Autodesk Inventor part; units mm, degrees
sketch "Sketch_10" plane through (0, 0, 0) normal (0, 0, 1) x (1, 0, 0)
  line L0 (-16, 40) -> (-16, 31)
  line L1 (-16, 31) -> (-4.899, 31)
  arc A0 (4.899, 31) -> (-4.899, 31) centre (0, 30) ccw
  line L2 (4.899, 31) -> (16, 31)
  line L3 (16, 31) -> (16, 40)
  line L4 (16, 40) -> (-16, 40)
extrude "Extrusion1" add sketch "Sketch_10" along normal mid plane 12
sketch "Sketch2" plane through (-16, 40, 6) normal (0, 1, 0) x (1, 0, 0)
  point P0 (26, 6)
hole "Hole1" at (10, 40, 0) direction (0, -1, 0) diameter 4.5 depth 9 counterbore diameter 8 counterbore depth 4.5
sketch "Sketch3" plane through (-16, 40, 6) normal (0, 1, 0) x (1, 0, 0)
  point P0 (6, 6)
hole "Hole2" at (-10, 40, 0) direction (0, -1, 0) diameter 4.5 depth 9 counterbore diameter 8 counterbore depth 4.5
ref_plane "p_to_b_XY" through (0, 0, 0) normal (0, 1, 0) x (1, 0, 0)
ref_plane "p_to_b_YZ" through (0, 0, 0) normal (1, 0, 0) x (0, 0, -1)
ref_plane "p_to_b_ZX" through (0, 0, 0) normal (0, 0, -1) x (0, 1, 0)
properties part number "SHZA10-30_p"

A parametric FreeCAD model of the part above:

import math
import FreeCAD as App
import Part
import Sketcher

doc = App.newDocument("Part")
body = doc.addObject("PartDesign::Body", "Body")

sketch1 = body.newObject("Sketcher::SketchObject", "Sketch")
sketch1.AttachmentSupport = (doc.getObject("XY_Plane"), [""])
sketch1.MapMode = "FlatFace"
sketch1.addGeometry(Part.LineSegment(App.Vector(16, 40, 0), App.Vector(-16, 40, 0)), False)
sketch1.addGeometry(Part.LineSegment(App.Vector(-16, 40, 0), App.Vector(-16, 31, 0)), False)
sketch1.addGeometry(Part.LineSegment(App.Vector(-16, 31, 0), App.Vector(-5, 31, 0)), False)
sketch1.addGeometry(Part.ArcOfCircle(Part.Circle(App.Vector(0, 30, 0), App.Vector(0, 0, 1), 5), math.radians(12), math.radians(168)), False)
sketch1.addGeometry(Part.LineSegment(App.Vector(5, 31, 0), App.Vector(16, 31, 0)), False)
sketch1.addGeometry(Part.LineSegment(App.Vector(16, 31, 0), App.Vector(16, 40, 0)), False)
sketch1.addConstraint(Sketcher.Constraint("Coincident", 0, 2, 1, 1))
sketch1.addConstraint(Sketcher.Constraint("Coincident", 1, 2, 2, 1))
sketch1.addConstraint(Sketcher.Constraint("Coincident", 2, 2, 3, 2))
sketch1.addConstraint(Sketcher.Constraint("Coincident", 3, 1, 4, 1))
sketch1.addConstraint(Sketcher.Constraint("Coincident", 4, 2, 5, 1))
sketch1.addConstraint(Sketcher.Constraint("Coincident", 5, 2, 0, 1))
sketch1.addConstraint(Sketcher.Constraint("Horizontal", 0))
sketch1.addConstraint(Sketcher.Constraint("Vertical", 1))
sketch1.addConstraint(Sketcher.Constraint("Horizontal", 2))
sketch1.addConstraint(Sketcher.Constraint("Horizontal", 4))
sketch1.addConstraint(Sketcher.Constraint("Vertical", 5))
sketch1.addConstraint(Sketcher.Constraint("Symmetric", 2, 2, 3, 1, -2))
sketch1.addConstraint(Sketcher.Constraint("Equal", 2, 4))
sketch1.addConstraint(Sketcher.Constraint("Radius", 3, 5.0))
sketch1.addConstraint(Sketcher.Constraint("DistanceX", 0, 2, 0, 1, 32.0))
sketch1.addConstraint(Sketcher.Constraint("DistanceY", 1, 2, 1, 1, 9.0))
sketch1.addConstraint(Sketcher.Constraint("DistanceY", -1, 1, 3, 3, 30.0))
sketch1.addConstraint(Sketcher.Constraint("DistanceY", -1, 1, 0, 2, 40.0))
pad1 = body.newObject("PartDesign::Pad", "Pad")
pad1.Profile = sketch1
pad1.Length = 12
pad1.Midplane = True

sketch2 = body.newObject("Sketcher::SketchObject", "Sketch001")
sketch2.AttachmentSupport = (doc.getObject("XZ_Plane"), [""])
sketch2.MapMode = "FlatFace"
sketch2.AttachmentOffset = App.Placement(App.Vector(0, 0, -40), App.Rotation())
sketch2.addGeometry(Part.Circle(App.Vector(10, 0, 0), App.Vector(0, 0, 1), 2.2), False)
sketch2.addConstraint(Sketcher.Constraint("PointOnObject", 0, 3, -1))
sketch2.addConstraint(Sketcher.Constraint("Diameter", 0, 4.5))
sketch2.addConstraint(Sketcher.Constraint("DistanceX", -1, 1, 0, 3, 10.0))
doc.recompute()
hole = body.newObject("PartDesign::Hole", "Hole")
hole.Profile = sketch2
hole.ThreadType = "None"
hole.Diameter = 4.5
hole.DepthType = "Dimension"
hole.Depth = 9
hole.DrillPoint = "Flat"
hole.HoleCutType = "Counterbore"
hole.HoleCutDiameter = 8
hole.HoleCutDepth = 4.5
hole.Reversed = True

sketch3 = body.newObject("Sketcher::SketchObject", "Sketch002")
sketch3.AttachmentSupport = (doc.getObject("XZ_Plane"), [""])
sketch3.MapMode = "FlatFace"
sketch3.AttachmentOffset = App.Placement(App.Vector(0, 0, -40), App.Rotation())
sketch3.addGeometry(Part.Circle(App.Vector(-10, 0, 0), App.Vector(0, 0, 1), 2.2), False)
sketch3.addConstraint(Sketcher.Constraint("PointOnObject", 0, 3, -1))
sketch3.addConstraint(Sketcher.Constraint("Diameter", 0, 4.5))
sketch3.addConstraint(Sketcher.Constraint("DistanceX", 0, 3, -1, 1, 10.0))
doc.recompute()
hole2 = body.newObject("PartDesign::Hole", "Hole001")
hole2.Profile = sketch3
hole2.ThreadType = "None"
hole2.Diameter = 4.5
hole2.DepthType = "Dimension"
hole2.Depth = 9
hole2.DrillPoint = "Flat"
hole2.HoleCutType = "Counterbore"
hole2.HoleCutDiameter = 8
hole2.HoleCutDepth = 4.5
hole2.Reversed = True

doc.recompute()
